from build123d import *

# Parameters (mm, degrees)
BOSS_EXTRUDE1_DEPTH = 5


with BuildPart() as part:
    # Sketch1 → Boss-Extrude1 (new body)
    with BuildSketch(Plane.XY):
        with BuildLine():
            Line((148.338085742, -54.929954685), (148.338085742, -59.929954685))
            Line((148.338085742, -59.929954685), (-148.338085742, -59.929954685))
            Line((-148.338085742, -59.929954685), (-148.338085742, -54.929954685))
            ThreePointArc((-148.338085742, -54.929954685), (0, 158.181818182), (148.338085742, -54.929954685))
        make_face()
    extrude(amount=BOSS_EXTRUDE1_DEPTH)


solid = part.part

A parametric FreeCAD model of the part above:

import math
import FreeCAD as App
import Part
import Sketcher

doc = App.newDocument("Part")
body = doc.addObject("PartDesign::Body", "Body")

sketch1 = body.newObject("Sketcher::SketchObject", "Sketch")
sketch1.AttachmentSupport = (doc.getObject("XY_Plane"), [""])
sketch1.MapMode = "FlatFace"
sketch1.addGeometry(Part.LineSegment(App.Vector(148, -60, 0), App.Vector(148, -55, 0)), False)
sketch1.addGeometry(Part.ArcOfCircle(Part.Circle(App.Vector(0, 0, 0), App.Vector(0, 0, 1), 158), math.radians(-20), math.radians(200)), False)
sketch1.addGeometry(Part.LineSegment(App.Vector(-148, -55, 0), App.Vector(-148, -60, 0)), False)
sketch1.addGeometry(Part.LineSegment(App.Vector(-148, -60, 0), App.Vector(148, -60, 0)), False)
sketch1.addConstraint(Sketcher.Constraint("Coincident", 0, 2, 1, 1))
sketch1.addConstraint(Sketcher.Constraint("Coincident", 1, 2, 2, 1))
sketch1.addConstraint(Sketcher.Constraint("Coincident", 2, 2, 3, 1))
sketch1.addConstraint(Sketcher.Constraint("Coincident", 3, 2, 0, 1))
sketch1.addConstraint(Sketcher.Constraint("Vertical", 0))
sketch1.addConstraint(Sketcher.Constraint("Vertical", 2))
sketch1.addConstraint(Sketcher.Constraint("Horizontal", 3))
sketch1.addConstraint(Sketcher.Constraint("Coincident", 1, 3, -1, 1))
sketch1.addConstraint(Sketcher.Constraint("Horizontal", 0, 2, 1, 2))
sketch1.addConstraint(Sketcher.Constraint("DistanceY", 0, 1, 0, 2, 5.0))
sketch1.addConstraint(Sketcher.Constraint("Radius", 1, 158.181818))
sketch1.addConstraint(Sketcher.Constraint("DistanceX", 3, 1, 3, 2, 296.676171))
pad1 = body.newObject("PartDesign::Pad", "Pad")
pad1.Profile = sketch1
pad1.Length = 5

doc.recompute()
